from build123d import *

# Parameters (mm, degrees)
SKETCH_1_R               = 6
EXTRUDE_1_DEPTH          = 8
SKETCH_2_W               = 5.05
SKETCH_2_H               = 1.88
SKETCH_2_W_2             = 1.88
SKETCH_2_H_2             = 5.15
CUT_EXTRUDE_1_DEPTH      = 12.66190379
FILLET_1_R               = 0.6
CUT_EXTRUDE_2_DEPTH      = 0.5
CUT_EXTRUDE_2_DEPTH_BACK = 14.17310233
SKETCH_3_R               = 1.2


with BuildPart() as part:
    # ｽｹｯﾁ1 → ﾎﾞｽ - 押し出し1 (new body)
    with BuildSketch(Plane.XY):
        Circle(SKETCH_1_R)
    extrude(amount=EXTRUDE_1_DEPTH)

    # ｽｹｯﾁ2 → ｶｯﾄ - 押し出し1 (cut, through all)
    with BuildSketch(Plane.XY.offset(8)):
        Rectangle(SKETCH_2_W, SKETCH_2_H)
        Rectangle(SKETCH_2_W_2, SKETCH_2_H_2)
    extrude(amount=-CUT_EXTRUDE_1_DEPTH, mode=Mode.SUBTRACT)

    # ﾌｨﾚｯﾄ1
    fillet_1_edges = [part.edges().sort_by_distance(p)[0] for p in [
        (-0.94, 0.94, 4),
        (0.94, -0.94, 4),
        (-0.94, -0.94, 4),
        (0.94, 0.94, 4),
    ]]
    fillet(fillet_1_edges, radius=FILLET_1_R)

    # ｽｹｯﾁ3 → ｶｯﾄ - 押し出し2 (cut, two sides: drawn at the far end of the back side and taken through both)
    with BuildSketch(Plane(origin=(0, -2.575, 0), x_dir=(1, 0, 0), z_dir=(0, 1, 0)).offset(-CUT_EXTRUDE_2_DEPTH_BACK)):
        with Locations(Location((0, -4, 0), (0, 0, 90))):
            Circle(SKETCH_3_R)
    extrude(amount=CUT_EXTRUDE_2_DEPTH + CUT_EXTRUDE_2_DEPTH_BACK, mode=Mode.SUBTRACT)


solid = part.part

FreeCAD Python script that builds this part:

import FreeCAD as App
import Part
import Sketcher

V = App.Vector
Q = App.Units.Quantity


def edges_at(feature, points):
    """Names of the edges that pass closest to the given points."""
    edges = feature.Shape.Edges
    near = lambda p: min(range(len(edges)), key=lambda i: edges[i].distToShape(Part.Vertex(*p))[0])
    return sorted({f"Edge{near(p) + 1}" for p in points})


def add_polygon(sketch, points):
    """Adds a closed chain of lines whose ends are joined by coincident constraints."""
    first, n = sketch.GeometryCount, len(points)
    for a, b in zip(points, points[1:] + points[:1]):
        sketch.addGeometry(Part.LineSegment(App.Vector(*a, 0), App.Vector(*b, 0)), False)
    for i in range(n):
        sketch.addConstraint(Sketcher.Constraint("Coincident", first + i, 2, first + (i + 1) % n, 1))

doc = App.newDocument("Part")
body = doc.addObject("PartDesign::Body", "Body")

# Sketch on XY plane
sketch1 = body.newObject("Sketcher::SketchObject", "Sketch")
sketch1.AttachmentSupport = (doc.getObject("XY_Plane"), [""])
sketch1.MapMode = "FlatFace"
sketch1.addGeometry(Part.Circle(V(0, 0, 0), V(0, 0, 1), 6), False)
sketch1.addConstraint([
    Sketcher.Constraint("Coincident", 0, 3, -1, 1),
    Sketcher.Constraint("Diameter", 0, Q("12 mm")),
])
pad1 = body.newObject("PartDesign::Pad", "Pad")
pad1.Profile = sketch1
pad1.Length = 8

# Sketch on XY plane
sketch2 = body.newObject("Sketcher::SketchObject", "Sketch001")
sketch2.AttachmentSupport = (doc.getObject("XY_Plane"), [""])
sketch2.MapMode = "FlatFace"
sketch2.AttachmentOffset = App.Placement(V(0, 0, 8), App.Rotation())
add_polygon(sketch2, [(-2.5, 0.9), (-2.5, -0.9), (-0.9, -0.9), (-0.9, -2.6), (0.9, -2.6), (0.9, -0.9), (2.5, -0.9), (2.5, 0.9), (0.9, 0.9), (0.9, 2.6), (-0.9, 2.6), (-0.9, 0.9)])  # lines 0-11
sketch2.addConstraint([
    Sketcher.Constraint("Vertical", 0),
    Sketcher.Constraint("Horizontal", 1),
    Sketcher.Constraint("Vertical", 2),
    Sketcher.Constraint("Horizontal", 3),
    Sketcher.Constraint("Vertical", 4),
    Sketcher.Constraint("Horizontal", 5),
    Sketcher.Constraint("Vertical", 6),
    Sketcher.Constraint("Horizontal", 7),
    Sketcher.Constraint("Vertical", 8),
    Sketcher.Constraint("Horizontal", 9),
    Sketcher.Constraint("Vertical", 10),
    Sketcher.Constraint("Horizontal", 11),
    Sketcher.Constraint("Symmetric", 0, 2, 6, 2, -1, 1),
    Sketcher.Constraint("Symmetric", 2, 2, 8, 2, -1, 1),
    Sketcher.Constraint("Symmetric", 4, 2, 10, 2, -1, 1),
    Sketcher.Constraint("Symmetric", 1, 2, 4, 2, -2),
    Sketcher.Constraint("Equal", 9, 0),
    Sketcher.Constraint("DistanceX", 3, 1, 3, 2, Q("1.88 mm")),
    Sketcher.Constraint("DistanceX", 1, 1, 1, 2, Q("1.585 mm")),
    Sketcher.Constraint("DistanceY", 2, 2, 2, 1, Q("1.635 mm")),
])
pocket1 = body.newObject("PartDesign::Pocket", "Pocket")
pocket1.Profile = sketch2
pocket1.Type = "ThroughAll"
doc.recompute()

fillet = body.newObject("PartDesign::Fillet", "Fillet")
fillet.Base = (pocket1, edges_at(pocket1, [
    (-0.94, 0.94, 4),
    (0.94, -0.94, 4),
    (-0.94, -0.94, 4),
    (0.94, 0.94, 4),
]))
fillet.Radius = 0.6

# Sketch on XZ plane
sketch3 = body.newObject("Sketcher::SketchObject", "Sketch002")
sketch3.AttachmentSupport = (doc.getObject("XZ_Plane"), [""])
sketch3.MapMode = "FlatFace"
sketch3.AttachmentOffset = App.Placement(V(0, 0, 2.575), App.Rotation())
sketch3.addGeometry(Part.Circle(V(0, 4, 0), V(0, 0, 1), 1.2), False)
sketch3.addConstraint([
    Sketcher.Constraint("PointOnObject", 0, 3, -2),
    Sketcher.Constraint("Diameter", 0, Q("2.4 mm")),
    Sketcher.Constraint("DistanceY", -1, 1, 0, 3, Q("4 mm")),
])
pocket2 = body.newObject("PartDesign::Pocket", "Pocket001")
pocket2.Profile = sketch3
pocket2.Type = "TwoLengths"
pocket2.Length = 0.5
pocket2.Length2 = 14.173102

doc.recompute()
